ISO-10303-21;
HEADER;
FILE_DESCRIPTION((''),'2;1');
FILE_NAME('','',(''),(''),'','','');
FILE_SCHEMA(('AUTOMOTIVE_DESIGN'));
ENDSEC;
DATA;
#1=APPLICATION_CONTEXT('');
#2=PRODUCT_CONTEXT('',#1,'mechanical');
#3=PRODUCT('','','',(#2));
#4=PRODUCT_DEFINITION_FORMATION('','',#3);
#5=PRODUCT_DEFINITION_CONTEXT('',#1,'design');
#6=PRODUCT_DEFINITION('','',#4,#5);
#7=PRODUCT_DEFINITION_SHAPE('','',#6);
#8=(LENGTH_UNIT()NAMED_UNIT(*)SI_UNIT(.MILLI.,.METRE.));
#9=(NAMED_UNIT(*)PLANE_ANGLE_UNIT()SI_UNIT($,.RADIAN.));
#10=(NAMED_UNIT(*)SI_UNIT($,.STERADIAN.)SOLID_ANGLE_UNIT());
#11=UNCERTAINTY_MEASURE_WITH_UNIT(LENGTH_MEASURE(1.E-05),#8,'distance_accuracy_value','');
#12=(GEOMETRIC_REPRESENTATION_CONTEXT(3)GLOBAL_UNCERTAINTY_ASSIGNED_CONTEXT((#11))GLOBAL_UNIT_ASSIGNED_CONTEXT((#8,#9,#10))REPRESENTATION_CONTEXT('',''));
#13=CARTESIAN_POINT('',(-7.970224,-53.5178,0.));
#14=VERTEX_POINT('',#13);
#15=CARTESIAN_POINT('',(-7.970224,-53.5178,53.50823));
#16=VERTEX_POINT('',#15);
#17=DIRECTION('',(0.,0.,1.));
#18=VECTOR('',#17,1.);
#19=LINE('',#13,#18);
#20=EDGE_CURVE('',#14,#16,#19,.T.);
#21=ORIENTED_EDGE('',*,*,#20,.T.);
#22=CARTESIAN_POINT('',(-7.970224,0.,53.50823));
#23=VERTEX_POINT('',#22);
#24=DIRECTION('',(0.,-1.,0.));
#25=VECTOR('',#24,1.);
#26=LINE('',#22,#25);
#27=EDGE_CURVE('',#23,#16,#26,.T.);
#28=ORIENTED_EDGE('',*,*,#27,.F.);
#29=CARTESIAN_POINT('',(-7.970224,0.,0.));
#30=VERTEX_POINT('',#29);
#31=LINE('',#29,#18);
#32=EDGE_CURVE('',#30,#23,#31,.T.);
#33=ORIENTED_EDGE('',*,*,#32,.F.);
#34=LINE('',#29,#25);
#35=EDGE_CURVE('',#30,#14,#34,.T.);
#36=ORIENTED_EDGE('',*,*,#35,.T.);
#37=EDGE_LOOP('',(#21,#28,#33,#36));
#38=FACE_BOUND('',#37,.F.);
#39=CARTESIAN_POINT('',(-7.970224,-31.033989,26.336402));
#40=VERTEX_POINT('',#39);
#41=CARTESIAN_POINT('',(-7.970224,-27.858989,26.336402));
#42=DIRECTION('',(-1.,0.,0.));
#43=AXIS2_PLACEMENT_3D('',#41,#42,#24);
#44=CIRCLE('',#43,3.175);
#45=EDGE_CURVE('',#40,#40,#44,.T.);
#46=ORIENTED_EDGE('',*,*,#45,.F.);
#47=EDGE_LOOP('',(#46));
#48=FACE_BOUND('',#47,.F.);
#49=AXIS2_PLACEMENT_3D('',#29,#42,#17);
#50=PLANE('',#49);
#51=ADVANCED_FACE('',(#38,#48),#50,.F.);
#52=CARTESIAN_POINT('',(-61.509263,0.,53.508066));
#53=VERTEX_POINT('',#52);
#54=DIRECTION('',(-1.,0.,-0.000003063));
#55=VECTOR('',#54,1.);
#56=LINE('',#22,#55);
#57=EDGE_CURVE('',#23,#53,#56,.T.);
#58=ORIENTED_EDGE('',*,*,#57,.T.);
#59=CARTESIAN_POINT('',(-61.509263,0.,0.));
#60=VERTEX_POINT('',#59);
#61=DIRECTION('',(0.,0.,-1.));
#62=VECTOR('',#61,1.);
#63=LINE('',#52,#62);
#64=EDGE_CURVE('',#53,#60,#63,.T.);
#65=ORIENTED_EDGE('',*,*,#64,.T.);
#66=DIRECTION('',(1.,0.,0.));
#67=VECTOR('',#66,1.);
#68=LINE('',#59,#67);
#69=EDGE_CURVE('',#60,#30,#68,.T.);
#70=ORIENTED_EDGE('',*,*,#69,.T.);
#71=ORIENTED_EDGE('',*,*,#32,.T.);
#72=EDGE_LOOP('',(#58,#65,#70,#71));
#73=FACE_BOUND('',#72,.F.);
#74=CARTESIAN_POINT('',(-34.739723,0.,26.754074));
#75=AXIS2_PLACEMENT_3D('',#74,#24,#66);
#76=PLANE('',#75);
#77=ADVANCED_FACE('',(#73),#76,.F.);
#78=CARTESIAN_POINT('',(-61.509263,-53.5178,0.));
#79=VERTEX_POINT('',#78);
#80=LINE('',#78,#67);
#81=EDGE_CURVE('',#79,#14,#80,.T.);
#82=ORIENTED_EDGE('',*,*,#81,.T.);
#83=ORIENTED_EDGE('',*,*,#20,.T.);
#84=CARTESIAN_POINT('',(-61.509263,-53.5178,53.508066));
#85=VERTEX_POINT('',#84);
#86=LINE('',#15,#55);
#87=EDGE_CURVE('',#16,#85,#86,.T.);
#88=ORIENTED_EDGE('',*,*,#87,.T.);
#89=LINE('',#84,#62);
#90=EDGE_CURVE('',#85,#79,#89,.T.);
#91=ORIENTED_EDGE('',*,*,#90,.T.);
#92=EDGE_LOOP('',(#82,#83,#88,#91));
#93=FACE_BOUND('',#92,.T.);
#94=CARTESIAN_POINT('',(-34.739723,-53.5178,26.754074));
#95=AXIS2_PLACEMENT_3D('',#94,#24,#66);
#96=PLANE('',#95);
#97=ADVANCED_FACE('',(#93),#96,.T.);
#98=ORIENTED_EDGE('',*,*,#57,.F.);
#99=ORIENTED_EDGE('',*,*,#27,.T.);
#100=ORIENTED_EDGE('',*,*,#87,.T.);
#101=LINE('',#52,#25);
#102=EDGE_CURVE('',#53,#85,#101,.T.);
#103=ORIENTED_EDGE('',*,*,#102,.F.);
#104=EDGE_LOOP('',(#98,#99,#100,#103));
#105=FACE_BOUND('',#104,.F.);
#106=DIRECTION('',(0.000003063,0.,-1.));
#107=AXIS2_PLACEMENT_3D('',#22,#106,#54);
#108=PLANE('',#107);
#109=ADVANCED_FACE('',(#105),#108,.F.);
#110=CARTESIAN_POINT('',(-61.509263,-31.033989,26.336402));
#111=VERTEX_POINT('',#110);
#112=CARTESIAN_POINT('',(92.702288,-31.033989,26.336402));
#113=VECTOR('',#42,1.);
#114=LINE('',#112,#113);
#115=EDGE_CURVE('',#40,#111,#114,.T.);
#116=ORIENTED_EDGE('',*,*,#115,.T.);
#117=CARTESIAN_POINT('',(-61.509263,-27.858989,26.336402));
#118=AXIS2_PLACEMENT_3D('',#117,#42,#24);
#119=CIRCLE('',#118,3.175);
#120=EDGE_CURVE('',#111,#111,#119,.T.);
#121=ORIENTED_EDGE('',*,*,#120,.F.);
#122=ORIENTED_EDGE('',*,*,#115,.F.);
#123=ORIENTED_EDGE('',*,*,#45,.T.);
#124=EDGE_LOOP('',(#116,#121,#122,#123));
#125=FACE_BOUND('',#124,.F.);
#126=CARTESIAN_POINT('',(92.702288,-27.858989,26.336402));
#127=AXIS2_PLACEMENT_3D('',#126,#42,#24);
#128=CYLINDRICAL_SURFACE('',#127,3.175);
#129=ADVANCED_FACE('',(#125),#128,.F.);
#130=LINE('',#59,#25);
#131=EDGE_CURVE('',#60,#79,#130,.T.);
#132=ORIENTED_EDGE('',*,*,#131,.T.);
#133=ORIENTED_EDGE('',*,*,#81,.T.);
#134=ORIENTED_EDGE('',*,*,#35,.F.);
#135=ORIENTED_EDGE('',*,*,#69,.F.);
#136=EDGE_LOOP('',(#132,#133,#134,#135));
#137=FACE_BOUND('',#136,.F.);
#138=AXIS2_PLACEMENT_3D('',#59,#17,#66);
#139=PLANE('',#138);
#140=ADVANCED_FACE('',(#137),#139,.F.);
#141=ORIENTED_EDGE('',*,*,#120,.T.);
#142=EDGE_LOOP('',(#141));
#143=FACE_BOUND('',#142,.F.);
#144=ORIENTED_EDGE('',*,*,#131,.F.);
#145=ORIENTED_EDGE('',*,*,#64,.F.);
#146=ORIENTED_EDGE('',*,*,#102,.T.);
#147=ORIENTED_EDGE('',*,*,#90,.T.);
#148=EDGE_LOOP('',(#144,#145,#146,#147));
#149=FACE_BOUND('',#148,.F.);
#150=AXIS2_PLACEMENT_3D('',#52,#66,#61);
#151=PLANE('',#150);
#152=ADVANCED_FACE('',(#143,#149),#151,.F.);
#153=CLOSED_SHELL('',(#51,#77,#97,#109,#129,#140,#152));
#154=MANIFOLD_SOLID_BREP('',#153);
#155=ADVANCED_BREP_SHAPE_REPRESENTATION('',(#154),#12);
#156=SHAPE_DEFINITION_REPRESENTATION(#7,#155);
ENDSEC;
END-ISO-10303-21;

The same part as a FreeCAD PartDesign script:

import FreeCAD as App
import Part
import Sketcher

V = App.Vector
Q = App.Units.Quantity


def add_polygon(sketch, points):
    """Adds a closed chain of lines whose ends are joined by coincident constraints."""
    first, n = sketch.GeometryCount, len(points)
    for a, b in zip(points, points[1:] + points[:1]):
        sketch.addGeometry(Part.LineSegment(App.Vector(*a, 0), App.Vector(*b, 0)), False)
    for i in range(n):
        sketch.addConstraint(Sketcher.Constraint("Coincident", first + i, 2, first + (i + 1) % n, 1))

doc = App.newDocument("Part")
body = doc.addObject("PartDesign::Body", "Body")

# Sketch on XZ plane
sketch1 = body.newObject("Sketcher::SketchObject", "Sketch")
sketch1.AttachmentSupport = (doc.getObject("XZ_Plane"), [""])
sketch1.MapMode = "FlatFace"
add_polygon(sketch1, [(-7.970224, 53.50823), (-61.509263, 53.508066), (-61.509263, 0), (-7.970224, 0)])  # lines 0-3
sketch1.addConstraint([
    Sketcher.Constraint("Vertical", 1),
    Sketcher.Constraint("Horizontal", 2),
    Sketcher.Constraint("Vertical", 3),
    Sketcher.Constraint("PointOnObject", 1, 2, -1),
    Sketcher.Constraint("DistanceX", 2, 1, 2, 2, 53.539039),
    Sketcher.Constraint("DistanceY", 3, 1, 3, 2, 53.50823),
    Sketcher.Constraint("DistanceY", 1, 2, 1, 1, 53.508066),
    Sketcher.Constraint("DistanceX", 0, 2, -1, 1, 61.509263),
])
pad1 = body.newObject("PartDesign::Pad", "Pad")
pad1.Profile = sketch1
pad1.Length = Q("2.107 in")

# Sketch on YZ plane
sketch2 = body.newObject("Sketcher::SketchObject", "Sketch001")
sketch2.AttachmentSupport = (doc.getObject("YZ_Plane"), [""])
sketch2.MapMode = "FlatFace"
sketch2.addGeometry(Part.Circle(V(-27.858989, 26.336402, 0), V(0, 0, 1), 3.175), False)
sketch2.addConstraint([
    Sketcher.Constraint("Diameter", 0, Q("0.25 in")),
    Sketcher.Constraint("DistanceY", -1, 1, 0, 3, 26.336402),
    Sketcher.Constraint("DistanceX", 0, 3, -1, 1, 27.858989),
])
doc.recompute()
hole = body.newObject("PartDesign::Hole", "Hole")
hole.Profile = sketch2
hole.ThreadType = "None"
hole.Diameter = Q("0.25 in")
hole.DepthType = "ThroughAll"

doc.recompute()
